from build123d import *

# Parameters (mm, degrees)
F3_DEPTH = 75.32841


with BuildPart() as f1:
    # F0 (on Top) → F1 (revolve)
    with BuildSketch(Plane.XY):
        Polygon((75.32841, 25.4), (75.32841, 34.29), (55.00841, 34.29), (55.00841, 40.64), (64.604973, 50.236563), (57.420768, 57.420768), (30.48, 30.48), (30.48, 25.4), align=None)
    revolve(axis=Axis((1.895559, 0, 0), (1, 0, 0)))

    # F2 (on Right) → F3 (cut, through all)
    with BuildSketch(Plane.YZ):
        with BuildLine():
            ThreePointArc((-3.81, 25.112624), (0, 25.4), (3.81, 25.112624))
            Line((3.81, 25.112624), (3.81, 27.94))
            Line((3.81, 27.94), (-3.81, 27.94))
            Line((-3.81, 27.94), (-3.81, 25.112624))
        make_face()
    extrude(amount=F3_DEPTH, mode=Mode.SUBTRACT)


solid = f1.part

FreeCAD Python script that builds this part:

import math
import FreeCAD as App
import Part
import Sketcher
from FreeCAD import Vector
Q = App.Units.Quantity

doc = App.newDocument("Part")
params = doc.addObject("Spreadsheet::Sheet", "Params")
for row, (alias, value) in enumerate([
    ("sketch1_width", "0.8 in"),
    ("sketch1_height", "0.2 in"),
    ("sketch1_length", "0.4 in"),
    ("sketch1_length2", "1.5 in"),
    ("sketch1_height2", "0.35 in"),
    ("revolution_angle", "360 deg"),
    ("sketch2_width", "0.3 in"),
], start=1):
    params.set(f"A{row}", alias)
    params.set(f"B{row}", "=" + value)
    params.setAlias(f"B{row}", alias)

body = doc.addObject("PartDesign::Body", "Body")

# Sketch on XY plane
sketch1 = doc.addObject("Sketcher::SketchObject", "Sketch")
body.addObject(sketch1)
sketch1.AttachmentSupport = (doc.XY_Plane, [""])
sketch1.MapMode = "FlatFace"
sketch1.addGeometry([
    Part.LineSegment(Vector(75, 25, 0), Vector(75, 34, 0)),  # 0
    Part.LineSegment(Vector(75, 34, 0), Vector(55, 34, 0)),  # 1
    Part.LineSegment(Vector(55, 34, 0), Vector(55, 41, 0)),  # 2
    Part.LineSegment(Vector(55, 41, 0), Vector(65, 50, 0)),  # 3
    Part.LineSegment(Vector(65, 50, 0), Vector(57, 57, 0)),  # 4
    Part.LineSegment(Vector(57, 57, 0), Vector(30, 30, 0)),  # 5
    Part.LineSegment(Vector(30, 30, 0), Vector(30, 25, 0)),  # 6
    Part.LineSegment(Vector(30, 25, 0), Vector(75, 25, 0)),  # 7
], False)
sketch1.addConstraint([
    Sketcher.Constraint("Coincident", 0, 2, 1, 1),
    Sketcher.Constraint("Coincident", 1, 2, 2, 1),
    Sketcher.Constraint("Coincident", 2, 2, 3, 1),
    Sketcher.Constraint("Coincident", 3, 2, 4, 1),
    Sketcher.Constraint("Coincident", 4, 2, 5, 1),
    Sketcher.Constraint("Coincident", 5, 2, 6, 1),
    Sketcher.Constraint("Coincident", 6, 2, 7, 1),
    Sketcher.Constraint("Coincident", 7, 2, 0, 1),
    Sketcher.Constraint("Vertical", 0),
    Sketcher.Constraint("Horizontal", 1),
    Sketcher.Constraint("Vertical", 2),
    Sketcher.Constraint("Vertical", 6),
    Sketcher.Constraint("Horizontal", 7),
    Sketcher.Constraint("Perpendicular", 3, 4),
    Sketcher.Constraint("Perpendicular", 4, 5),
    Sketcher.Constraint("DistanceX", 1, 2, 1, 1, Q("0.8 in")),
    Sketcher.Constraint("DistanceY", 6, 2, 6, 1, Q("0.2 in")),
    Sketcher.Constraint("DistanceY", -1, 1, 6, 2, Q("1 in")),
    Sketcher.Constraint("Angle", 3, Q("45 deg")),
    Sketcher.Constraint("Distance", 4, Q("0.4 in")),
    Sketcher.Constraint("Distance", 5, Q("1.5 in")),
    Sketcher.Constraint("DistanceY", 0, 1, 0, 2, Q("0.35 in")),
    Sketcher.Constraint("DistanceY", 2, 1, 2, 2, Q("0.25 in")),
    Sketcher.Constraint("DistanceX", -1, 1, 5, 2, Q("1.2 in")),
])
sketch1.setExpression("Constraints[15]", "Params.sketch1_width")
sketch1.setExpression("Constraints[16]", "Params.sketch1_height")
sketch1.setExpression("Constraints[19]", "Params.sketch1_length")
sketch1.setExpression("Constraints[20]", "Params.sketch1_length2")
sketch1.setExpression("Constraints[21]", "Params.sketch1_height2")
revolution = doc.addObject("PartDesign::Revolution", "Revolution")
body.addObject(revolution)
revolution.Profile = sketch1
revolution.ReferenceAxis = (sketch1, ["H_Axis"])
revolution.setExpression("Angle", "Params.revolution_angle")

# Sketch on YZ plane
sketch2 = doc.addObject("Sketcher::SketchObject", "Sketch001")
body.addObject(sketch2)
sketch2.AttachmentSupport = (doc.YZ_Plane, [""])
sketch2.MapMode = "FlatFace"
sketch2.addGeometry([
    Part.ArcOfCircle(Part.Circle(Vector(0, 0, 0), Vector(0, 0, 1), 25.4), math.radians(81.37), math.radians(98.63)),
    Part.LineSegment(Vector(3.8, 25.1, 0), Vector(3.8, 27.9, 0)),
    Part.LineSegment(Vector(3.8, 27.9, 0), Vector(-3.8, 27.9, 0)),
    Part.LineSegment(Vector(-3.8, 27.9, 0), Vector(-3.8, 25.1, 0)),
], False)
sketch2.addConstraint([
    Sketcher.Constraint("Coincident", 0, 1, 1, 1),
    Sketcher.Constraint("Coincident", 1, 2, 2, 1),
    Sketcher.Constraint("Coincident", 2, 2, 3, 1),
    Sketcher.Constraint("Coincident", 3, 2, 0, 2),
    Sketcher.Constraint("Vertical", 1),
    Sketcher.Constraint("Horizontal", 2),
    Sketcher.Constraint("Vertical", 3),
    Sketcher.Constraint("Symmetric", 0, 1, 3, 2, -2),
    Sketcher.Constraint("DistanceX", 2, 2, 2, 1, Q("0.3 in")),
    Sketcher.Constraint("DistanceY", -1, 1, 1, 2, Q("1.1 in")),
    Sketcher.Constraint("Radius", 0, 25.399972),
    Sketcher.Constraint("DistanceY", 1, 1, 1, 2, 2.827376),
])
sketch2.setExpression("Constraints[8]", "Params.sketch2_width")
pocket1 = doc.addObject("PartDesign::Pocket", "Pocket")
body.addObject(pocket1)
pocket1.Profile = sketch2
pocket1.Type = "ThroughAll"
pocket1.Reversed = True

doc.recompute()
